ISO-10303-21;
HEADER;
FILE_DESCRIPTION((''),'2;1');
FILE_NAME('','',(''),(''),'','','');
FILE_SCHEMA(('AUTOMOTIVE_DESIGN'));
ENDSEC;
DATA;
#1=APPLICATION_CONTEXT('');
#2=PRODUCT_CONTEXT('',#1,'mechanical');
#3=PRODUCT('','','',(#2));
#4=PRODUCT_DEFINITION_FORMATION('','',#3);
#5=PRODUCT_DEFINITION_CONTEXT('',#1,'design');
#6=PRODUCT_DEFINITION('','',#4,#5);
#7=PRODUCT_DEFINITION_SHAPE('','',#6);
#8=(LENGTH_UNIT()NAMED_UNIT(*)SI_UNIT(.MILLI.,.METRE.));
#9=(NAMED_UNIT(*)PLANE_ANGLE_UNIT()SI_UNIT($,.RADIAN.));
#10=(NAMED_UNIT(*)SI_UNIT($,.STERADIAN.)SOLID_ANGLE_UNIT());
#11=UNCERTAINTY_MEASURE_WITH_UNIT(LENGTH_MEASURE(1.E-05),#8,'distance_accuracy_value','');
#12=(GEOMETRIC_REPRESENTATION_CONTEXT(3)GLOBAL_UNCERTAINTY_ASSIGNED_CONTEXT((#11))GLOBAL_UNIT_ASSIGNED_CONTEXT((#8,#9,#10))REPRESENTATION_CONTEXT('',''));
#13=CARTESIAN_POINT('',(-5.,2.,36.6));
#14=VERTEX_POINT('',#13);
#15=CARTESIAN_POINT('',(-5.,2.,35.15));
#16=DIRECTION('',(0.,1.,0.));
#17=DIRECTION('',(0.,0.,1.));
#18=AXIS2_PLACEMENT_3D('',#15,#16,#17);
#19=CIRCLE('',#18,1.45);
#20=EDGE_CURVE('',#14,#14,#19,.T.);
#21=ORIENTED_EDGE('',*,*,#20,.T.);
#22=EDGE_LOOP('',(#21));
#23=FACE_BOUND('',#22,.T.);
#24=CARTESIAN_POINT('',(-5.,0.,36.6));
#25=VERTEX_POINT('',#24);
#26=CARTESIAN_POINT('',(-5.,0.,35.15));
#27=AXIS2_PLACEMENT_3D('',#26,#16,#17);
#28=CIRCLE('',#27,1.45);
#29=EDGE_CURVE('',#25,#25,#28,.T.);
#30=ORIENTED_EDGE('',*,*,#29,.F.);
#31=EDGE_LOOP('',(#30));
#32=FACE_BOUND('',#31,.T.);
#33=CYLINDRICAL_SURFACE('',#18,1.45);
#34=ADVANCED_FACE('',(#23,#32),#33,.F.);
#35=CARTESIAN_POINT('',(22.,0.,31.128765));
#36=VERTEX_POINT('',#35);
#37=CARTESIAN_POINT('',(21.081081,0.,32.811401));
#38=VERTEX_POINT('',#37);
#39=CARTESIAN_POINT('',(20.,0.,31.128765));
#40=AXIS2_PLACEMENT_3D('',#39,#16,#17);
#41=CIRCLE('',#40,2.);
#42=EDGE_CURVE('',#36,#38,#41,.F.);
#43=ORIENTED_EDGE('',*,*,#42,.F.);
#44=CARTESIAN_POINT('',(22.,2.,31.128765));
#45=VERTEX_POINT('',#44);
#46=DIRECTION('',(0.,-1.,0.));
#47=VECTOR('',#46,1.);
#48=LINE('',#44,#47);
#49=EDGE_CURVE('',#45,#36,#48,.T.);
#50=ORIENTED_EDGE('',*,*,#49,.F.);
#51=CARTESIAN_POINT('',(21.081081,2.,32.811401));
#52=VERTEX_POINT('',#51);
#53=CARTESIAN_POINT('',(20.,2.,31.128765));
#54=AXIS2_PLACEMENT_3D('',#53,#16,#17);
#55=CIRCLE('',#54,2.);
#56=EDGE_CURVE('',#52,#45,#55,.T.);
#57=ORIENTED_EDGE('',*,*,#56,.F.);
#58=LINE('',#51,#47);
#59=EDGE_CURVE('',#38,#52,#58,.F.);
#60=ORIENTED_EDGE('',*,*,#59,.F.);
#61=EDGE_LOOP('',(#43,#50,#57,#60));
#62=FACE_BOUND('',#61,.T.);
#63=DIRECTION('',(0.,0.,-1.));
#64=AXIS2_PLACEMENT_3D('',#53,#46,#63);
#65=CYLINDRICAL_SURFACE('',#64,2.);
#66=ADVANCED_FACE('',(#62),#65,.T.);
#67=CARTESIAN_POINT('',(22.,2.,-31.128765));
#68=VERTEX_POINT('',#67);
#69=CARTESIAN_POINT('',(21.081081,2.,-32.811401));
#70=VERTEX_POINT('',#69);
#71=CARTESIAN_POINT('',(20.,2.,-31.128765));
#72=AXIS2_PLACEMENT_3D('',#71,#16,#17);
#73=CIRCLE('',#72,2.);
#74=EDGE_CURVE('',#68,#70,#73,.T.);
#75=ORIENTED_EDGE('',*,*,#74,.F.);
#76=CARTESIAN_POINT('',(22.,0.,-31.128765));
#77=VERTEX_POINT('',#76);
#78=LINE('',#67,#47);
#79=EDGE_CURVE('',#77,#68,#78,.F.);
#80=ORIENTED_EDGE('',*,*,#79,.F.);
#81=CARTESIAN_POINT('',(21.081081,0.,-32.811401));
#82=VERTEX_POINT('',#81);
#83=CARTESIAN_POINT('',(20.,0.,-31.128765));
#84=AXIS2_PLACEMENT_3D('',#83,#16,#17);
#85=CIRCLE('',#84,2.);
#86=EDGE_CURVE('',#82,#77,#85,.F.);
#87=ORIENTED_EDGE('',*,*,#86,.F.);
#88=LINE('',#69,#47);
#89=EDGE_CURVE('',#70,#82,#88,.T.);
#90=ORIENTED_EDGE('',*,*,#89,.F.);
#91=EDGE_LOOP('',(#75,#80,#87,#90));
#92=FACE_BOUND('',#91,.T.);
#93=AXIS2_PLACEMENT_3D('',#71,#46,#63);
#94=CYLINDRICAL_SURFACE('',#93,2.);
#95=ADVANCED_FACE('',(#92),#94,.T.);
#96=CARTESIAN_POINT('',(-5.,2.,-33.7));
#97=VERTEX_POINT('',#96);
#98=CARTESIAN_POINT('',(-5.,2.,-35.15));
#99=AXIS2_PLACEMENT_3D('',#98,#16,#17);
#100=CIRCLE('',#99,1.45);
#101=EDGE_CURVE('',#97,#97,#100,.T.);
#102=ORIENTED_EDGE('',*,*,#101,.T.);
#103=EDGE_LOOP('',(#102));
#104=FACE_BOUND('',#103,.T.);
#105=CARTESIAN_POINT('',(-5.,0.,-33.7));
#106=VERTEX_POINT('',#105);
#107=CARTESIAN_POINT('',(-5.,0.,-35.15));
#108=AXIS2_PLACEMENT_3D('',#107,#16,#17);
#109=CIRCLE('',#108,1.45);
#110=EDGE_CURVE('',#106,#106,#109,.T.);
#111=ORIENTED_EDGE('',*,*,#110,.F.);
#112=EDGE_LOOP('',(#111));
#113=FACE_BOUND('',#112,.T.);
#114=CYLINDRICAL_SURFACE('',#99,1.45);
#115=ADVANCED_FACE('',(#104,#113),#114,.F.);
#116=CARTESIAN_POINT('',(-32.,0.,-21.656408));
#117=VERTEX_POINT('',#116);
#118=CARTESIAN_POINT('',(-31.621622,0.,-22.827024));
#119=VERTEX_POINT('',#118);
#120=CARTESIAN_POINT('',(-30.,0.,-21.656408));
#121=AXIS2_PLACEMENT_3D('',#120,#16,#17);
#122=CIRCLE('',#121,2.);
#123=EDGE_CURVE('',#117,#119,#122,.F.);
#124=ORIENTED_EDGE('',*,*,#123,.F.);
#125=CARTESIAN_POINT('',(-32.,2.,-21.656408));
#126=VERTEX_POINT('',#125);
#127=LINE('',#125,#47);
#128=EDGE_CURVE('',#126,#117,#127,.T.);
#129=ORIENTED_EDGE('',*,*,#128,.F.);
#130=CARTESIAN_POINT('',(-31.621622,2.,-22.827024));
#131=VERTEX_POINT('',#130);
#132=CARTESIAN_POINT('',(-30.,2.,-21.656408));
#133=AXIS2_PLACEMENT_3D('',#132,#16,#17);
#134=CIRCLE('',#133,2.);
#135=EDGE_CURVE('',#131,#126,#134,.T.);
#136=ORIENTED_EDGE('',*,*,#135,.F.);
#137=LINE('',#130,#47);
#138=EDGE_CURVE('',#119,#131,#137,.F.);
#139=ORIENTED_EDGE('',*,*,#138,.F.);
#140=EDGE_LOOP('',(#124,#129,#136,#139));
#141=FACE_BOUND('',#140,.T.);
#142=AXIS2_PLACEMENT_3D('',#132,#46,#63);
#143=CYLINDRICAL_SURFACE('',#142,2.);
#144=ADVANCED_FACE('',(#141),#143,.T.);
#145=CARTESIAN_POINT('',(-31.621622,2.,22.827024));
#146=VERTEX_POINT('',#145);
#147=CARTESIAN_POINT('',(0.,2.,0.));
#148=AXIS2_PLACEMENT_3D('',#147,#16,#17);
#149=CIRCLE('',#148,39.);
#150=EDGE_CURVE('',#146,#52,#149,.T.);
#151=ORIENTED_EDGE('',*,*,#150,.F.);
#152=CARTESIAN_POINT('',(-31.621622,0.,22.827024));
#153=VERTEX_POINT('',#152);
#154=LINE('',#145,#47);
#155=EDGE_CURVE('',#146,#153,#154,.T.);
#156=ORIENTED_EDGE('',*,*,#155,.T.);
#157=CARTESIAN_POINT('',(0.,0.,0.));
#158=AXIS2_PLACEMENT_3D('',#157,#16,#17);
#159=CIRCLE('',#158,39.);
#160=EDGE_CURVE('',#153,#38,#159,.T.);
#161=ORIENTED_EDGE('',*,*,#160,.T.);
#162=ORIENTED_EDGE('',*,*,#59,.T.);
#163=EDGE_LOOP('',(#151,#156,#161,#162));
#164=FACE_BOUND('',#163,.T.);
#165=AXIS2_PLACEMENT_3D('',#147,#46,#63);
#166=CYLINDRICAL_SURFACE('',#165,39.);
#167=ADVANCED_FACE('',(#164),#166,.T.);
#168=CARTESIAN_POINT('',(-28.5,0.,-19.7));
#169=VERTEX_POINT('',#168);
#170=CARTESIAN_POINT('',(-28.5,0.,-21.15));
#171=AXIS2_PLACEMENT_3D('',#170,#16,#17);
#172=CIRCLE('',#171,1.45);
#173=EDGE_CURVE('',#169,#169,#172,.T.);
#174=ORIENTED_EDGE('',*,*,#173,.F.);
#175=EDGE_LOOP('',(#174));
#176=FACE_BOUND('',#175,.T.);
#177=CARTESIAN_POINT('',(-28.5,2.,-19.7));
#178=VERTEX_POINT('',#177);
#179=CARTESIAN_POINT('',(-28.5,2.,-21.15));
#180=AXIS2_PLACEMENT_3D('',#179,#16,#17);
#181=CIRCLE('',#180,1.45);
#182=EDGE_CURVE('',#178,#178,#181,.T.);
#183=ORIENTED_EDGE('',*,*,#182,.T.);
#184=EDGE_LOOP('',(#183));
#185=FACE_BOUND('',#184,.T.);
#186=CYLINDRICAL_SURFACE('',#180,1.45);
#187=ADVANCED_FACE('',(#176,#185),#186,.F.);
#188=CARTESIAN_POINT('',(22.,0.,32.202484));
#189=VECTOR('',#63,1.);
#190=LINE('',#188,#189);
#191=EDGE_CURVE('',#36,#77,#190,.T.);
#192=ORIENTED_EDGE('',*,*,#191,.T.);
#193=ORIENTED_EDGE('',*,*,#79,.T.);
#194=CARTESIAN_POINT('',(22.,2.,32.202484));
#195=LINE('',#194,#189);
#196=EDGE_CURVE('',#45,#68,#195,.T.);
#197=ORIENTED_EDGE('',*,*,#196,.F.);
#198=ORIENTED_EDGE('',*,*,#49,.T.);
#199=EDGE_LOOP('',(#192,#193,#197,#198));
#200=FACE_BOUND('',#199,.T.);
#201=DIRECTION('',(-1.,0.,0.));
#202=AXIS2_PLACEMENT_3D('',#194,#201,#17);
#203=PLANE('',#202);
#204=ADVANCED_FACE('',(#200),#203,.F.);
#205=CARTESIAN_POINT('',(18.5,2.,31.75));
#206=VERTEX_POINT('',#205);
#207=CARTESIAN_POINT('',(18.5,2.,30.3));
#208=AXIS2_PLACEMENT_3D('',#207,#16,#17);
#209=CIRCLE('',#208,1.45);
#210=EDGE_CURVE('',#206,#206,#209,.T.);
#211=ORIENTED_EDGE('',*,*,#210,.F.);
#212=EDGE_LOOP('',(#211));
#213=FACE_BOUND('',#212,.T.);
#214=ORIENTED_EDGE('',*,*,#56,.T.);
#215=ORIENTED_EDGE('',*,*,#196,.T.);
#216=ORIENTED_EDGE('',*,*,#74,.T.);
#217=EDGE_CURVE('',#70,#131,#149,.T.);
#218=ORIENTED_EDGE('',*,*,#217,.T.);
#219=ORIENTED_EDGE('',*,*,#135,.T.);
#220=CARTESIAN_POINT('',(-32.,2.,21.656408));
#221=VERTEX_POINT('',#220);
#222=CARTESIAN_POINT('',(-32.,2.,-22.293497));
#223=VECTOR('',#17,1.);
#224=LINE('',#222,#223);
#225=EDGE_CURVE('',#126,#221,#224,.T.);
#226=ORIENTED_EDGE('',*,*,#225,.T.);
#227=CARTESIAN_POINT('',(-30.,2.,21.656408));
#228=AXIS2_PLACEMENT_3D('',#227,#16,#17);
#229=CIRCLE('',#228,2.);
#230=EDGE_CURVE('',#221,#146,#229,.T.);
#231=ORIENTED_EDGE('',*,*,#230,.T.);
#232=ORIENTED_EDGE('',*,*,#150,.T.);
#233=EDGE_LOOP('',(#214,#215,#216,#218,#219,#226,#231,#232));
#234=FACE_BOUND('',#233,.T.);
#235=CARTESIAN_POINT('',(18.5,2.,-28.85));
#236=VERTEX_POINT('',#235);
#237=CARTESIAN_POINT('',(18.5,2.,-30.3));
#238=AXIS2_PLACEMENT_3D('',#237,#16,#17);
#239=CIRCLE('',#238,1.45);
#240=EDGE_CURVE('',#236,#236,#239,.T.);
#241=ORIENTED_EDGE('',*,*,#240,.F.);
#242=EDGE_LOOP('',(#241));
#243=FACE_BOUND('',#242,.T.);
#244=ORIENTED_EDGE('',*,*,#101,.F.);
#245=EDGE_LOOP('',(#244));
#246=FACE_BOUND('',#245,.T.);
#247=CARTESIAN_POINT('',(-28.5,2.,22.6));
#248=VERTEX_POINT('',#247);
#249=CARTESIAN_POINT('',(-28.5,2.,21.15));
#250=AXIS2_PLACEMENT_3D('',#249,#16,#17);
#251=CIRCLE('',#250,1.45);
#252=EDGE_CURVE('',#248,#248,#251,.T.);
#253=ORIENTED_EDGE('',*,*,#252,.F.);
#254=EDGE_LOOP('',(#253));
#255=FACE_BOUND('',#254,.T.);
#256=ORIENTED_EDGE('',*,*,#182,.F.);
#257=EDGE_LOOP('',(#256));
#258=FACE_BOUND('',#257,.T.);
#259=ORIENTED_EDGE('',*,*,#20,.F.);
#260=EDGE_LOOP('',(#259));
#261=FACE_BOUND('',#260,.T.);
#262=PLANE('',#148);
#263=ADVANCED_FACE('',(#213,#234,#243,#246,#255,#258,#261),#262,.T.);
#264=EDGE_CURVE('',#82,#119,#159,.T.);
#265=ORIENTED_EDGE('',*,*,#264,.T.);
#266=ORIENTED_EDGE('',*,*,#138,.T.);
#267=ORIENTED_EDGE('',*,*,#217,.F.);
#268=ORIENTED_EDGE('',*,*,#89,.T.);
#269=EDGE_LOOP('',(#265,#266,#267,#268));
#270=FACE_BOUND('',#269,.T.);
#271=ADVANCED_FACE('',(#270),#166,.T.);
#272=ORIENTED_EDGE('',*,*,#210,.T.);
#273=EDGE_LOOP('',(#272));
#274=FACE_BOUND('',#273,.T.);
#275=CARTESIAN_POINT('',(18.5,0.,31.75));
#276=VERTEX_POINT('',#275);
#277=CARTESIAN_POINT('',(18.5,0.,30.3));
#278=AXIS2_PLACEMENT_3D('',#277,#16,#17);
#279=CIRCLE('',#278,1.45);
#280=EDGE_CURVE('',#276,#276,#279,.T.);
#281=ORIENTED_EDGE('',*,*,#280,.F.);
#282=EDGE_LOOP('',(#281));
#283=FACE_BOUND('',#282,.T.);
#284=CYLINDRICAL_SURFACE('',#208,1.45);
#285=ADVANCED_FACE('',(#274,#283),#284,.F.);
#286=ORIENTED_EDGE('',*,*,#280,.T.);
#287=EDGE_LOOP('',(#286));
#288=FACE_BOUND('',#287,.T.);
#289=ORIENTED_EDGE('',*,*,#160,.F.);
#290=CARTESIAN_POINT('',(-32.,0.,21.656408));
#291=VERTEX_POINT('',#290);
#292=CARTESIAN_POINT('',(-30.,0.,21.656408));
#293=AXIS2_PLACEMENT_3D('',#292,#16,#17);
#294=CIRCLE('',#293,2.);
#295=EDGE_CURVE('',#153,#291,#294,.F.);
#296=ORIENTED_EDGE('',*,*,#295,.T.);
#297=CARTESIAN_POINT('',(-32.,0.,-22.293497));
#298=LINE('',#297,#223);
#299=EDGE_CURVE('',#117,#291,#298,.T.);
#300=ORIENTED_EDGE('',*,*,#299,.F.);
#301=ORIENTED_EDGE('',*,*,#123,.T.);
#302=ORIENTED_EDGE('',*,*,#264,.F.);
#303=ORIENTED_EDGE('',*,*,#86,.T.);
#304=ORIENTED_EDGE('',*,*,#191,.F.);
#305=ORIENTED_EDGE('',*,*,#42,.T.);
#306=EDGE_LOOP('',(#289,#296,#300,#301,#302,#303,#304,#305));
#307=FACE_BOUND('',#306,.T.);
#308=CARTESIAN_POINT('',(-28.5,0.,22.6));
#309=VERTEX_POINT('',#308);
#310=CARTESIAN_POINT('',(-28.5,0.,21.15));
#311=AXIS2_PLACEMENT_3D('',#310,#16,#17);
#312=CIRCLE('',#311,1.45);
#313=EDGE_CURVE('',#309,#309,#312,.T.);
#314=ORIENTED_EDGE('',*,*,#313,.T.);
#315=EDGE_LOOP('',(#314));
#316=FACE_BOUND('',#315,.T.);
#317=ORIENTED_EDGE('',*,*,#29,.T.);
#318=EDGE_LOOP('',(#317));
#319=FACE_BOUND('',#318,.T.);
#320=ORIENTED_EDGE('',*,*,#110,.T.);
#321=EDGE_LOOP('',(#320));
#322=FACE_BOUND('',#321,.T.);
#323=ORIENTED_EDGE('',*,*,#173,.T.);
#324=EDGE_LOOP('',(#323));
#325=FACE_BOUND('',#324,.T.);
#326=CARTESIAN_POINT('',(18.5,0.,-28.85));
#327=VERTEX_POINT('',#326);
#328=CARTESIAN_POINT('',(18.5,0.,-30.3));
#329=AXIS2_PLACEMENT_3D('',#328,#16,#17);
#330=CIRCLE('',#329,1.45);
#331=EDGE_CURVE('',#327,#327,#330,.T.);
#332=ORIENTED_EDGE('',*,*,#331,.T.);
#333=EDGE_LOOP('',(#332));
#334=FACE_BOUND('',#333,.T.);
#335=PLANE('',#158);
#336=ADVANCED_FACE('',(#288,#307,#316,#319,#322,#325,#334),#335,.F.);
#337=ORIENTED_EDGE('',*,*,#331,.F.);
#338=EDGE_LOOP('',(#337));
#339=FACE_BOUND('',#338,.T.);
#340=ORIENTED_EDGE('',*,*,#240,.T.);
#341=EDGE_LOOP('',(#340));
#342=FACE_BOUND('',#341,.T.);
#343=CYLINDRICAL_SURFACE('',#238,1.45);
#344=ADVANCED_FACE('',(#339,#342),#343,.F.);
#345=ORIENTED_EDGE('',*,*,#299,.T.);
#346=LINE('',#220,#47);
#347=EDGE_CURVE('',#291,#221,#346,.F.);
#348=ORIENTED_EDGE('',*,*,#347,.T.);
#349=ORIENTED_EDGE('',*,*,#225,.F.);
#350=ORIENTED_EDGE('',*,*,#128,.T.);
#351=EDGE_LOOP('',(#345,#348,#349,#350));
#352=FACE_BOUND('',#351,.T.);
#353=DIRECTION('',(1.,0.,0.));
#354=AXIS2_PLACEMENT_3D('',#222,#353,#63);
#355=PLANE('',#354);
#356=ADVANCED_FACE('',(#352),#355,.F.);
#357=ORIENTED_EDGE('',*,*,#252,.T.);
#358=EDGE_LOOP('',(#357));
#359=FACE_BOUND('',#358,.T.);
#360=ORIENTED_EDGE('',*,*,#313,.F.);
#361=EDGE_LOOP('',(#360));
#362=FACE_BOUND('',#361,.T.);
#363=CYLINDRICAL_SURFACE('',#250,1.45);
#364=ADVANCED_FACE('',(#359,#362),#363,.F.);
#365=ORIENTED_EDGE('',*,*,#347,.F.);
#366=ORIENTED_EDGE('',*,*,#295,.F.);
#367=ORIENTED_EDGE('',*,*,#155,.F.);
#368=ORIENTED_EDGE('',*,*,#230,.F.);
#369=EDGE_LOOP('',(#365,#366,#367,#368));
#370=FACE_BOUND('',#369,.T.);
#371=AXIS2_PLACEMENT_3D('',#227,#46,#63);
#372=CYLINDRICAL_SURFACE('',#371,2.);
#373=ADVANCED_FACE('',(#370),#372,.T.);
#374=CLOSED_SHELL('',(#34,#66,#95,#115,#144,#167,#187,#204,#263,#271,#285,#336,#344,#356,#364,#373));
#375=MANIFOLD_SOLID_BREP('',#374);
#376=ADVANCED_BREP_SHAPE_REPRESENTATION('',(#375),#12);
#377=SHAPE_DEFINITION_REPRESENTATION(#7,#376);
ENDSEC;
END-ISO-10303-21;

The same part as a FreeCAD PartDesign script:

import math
import FreeCAD as App
import Part
import Sketcher


def edges_at(feature, points):
    """Names of the edges that pass closest to the given points."""
    edges = feature.Shape.Edges
    near = lambda p: min(range(len(edges)), key=lambda i: edges[i].distToShape(Part.Vertex(*p))[0])
    return sorted({f"Edge{near(p) + 1}" for p in points})

doc = App.newDocument("Part")
body = doc.addObject("PartDesign::Body", "Body")

sketch1 = body.newObject("Sketcher::SketchObject", "Sketch")
sketch1.AttachmentSupport = (doc.getObject("XZ_Plane"), [""])
sketch1.MapMode = "FlatFace"
sketch1.addGeometry(Part.LineSegment(App.Vector(-32, -22.293497, 0), App.Vector(-32, 22.293497, 0)), False)
sketch1.addGeometry(Part.ArcOfCircle(Part.Circle(App.Vector(0, 0, 0), App.Vector(0, 0, 1), 39), math.radians(55.660005), math.radians(145.136162)), False)
sketch1.addGeometry(Part.LineSegment(App.Vector(22, 32.202484, 0), App.Vector(22, -32.202484, 0)), False)
sketch1.addGeometry(Part.ArcOfCircle(Part.Circle(App.Vector(0, 0, 0), App.Vector(0, 0, 1), 39), math.radians(-145.136162), math.radians(-55.660005)), False)
sketch1.addConstraint(Sketcher.Constraint("Coincident", 0, 2, 1, 2))
sketch1.addConstraint(Sketcher.Constraint("Coincident", 1, 1, 2, 1))
sketch1.addConstraint(Sketcher.Constraint("Coincident", 2, 2, 3, 2))
sketch1.addConstraint(Sketcher.Constraint("Coincident", 3, 1, 0, 1))
sketch1.addConstraint(Sketcher.Constraint("Vertical", 0))
sketch1.addConstraint(Sketcher.Constraint("Vertical", 2))
sketch1.addConstraint(Sketcher.Constraint("Coincident", 1, 3, -1, 1))
sketch1.addConstraint(Sketcher.Constraint("Coincident", 3, 3, -1, 1))
sketch1.addConstraint(Sketcher.Constraint("Equal", 1, 3))
sketch1.addConstraint(Sketcher.Constraint("Radius", 1, 39.0))
sketch1.addConstraint(Sketcher.Constraint("DistanceX", 0, 2, -1, 1, 32.0))
sketch1.addConstraint(Sketcher.Constraint("DistanceX", -1, 1, 1, 1, 22.0))
pad1 = body.newObject("PartDesign::Pad", "Pad")
pad1.Profile = sketch1
pad1.Length = 2
pad1.Reversed = True
doc.recompute()

fillet = body.newObject("PartDesign::Fillet", "Fillet")
fillet.Base = (pad1, edges_at(pad1, [
    (22, 1, -32.202),
    (22, 1, 32.202),
    (-32, 1, 22.293),
    (-32, 1, -22.293),
]))
fillet.Radius = 2

sketch2 = body.newObject("Sketcher::SketchObject", "Sketch001")
sketch2.AttachmentSupport = (doc.getObject("XZ_Plane"), [""])
sketch2.MapMode = "FlatFace"
sketch2.AttachmentOffset = App.Placement(App.Vector(0, 0, -2), App.Rotation())
sketch2.addGeometry(Part.Circle(App.Vector(-28.5, -21.15, 0), App.Vector(0, 0, 1), 1.45), False)
sketch2.addGeometry(Part.Circle(App.Vector(-28.5, 21.15, 0), App.Vector(0, 0, 1), 1.45), False)
sketch2.addGeometry(Part.Circle(App.Vector(18.5, 30.3, 0), App.Vector(0, 0, 1), 1.45), False)
sketch2.addGeometry(Part.Circle(App.Vector(18.5, -30.3, 0), App.Vector(0, 0, 1), 1.45), False)
sketch2.addGeometry(Part.Circle(App.Vector(-5, -35.15, 0), App.Vector(0, 0, 1), 1.45), False)
sketch2.addGeometry(Part.Circle(App.Vector(-5, 35.15, 0), App.Vector(0, 0, 1), 1.45), False)
sketch2.addConstraint(Sketcher.Constraint("Equal", 0, 1))
sketch2.addConstraint(Sketcher.Constraint("Equal", 1, 2))
sketch2.addConstraint(Sketcher.Constraint("Equal", 2, 3))
sketch2.addConstraint(Sketcher.Constraint("Equal", 3, 4))
sketch2.addConstraint(Sketcher.Constraint("Equal", 4, 5))
sketch2.addConstraint(Sketcher.Constraint("Symmetric", 0, 3, 1, 3, -1))
sketch2.addConstraint(Sketcher.Constraint("Symmetric", 2, 3, 3, 3, -1))
sketch2.addConstraint(Sketcher.Constraint("Symmetric", 4, 3, 5, 3, -1))
sketch2.addConstraint(Sketcher.Constraint("Diameter", 0, 2.9))
sketch2.addConstraint(Sketcher.Constraint("DistanceX", 4, 3, -1, 1, 5.0))
sketch2.addConstraint(Sketcher.Constraint("DistanceX", 1, 3, 2, 3, 47.0))
sketch2.addConstraint(Sketcher.Constraint("DistanceY", 4, 3, 0, 3, 14.0))
sketch2.addConstraint(Sketcher.Constraint("DistanceX", 0, 3, -1, 1, 28.5))
sketch2.addConstraint(Sketcher.Constraint("DistanceY", -1, 1, 2, 3, 30.3))
sketch2.addConstraint(Sketcher.Constraint("DistanceY", 0, 3, 1, 3, 42.3))
doc.recompute()
hole = body.newObject("PartDesign::Hole", "Hole")
hole.Profile = sketch2
hole.ThreadType = "None"
hole.Diameter = 2.9
hole.DepthType = "ThroughAll"
hole.Reversed = True

doc.recompute()
